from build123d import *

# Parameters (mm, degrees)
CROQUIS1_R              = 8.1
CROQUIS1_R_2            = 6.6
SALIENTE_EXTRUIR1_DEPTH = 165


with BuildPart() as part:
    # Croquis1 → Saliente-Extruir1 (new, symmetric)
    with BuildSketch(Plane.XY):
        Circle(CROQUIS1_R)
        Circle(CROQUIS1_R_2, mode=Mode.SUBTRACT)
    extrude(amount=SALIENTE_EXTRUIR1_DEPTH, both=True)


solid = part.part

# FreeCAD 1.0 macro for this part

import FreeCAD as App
import Part
import Sketcher
Q = App.Units.Quantity

doc = App.newDocument("Part")
body = doc.addObject("PartDesign::Body", "Body")

sketch1 = body.newObject("Sketcher::SketchObject", "Sketch")
sketch1.AttachmentSupport = (doc.getObject("XY_Plane"), [""])
sketch1.MapMode = "FlatFace"
sketch1.addGeometry([
    Part.Circle(App.Vector(0, 0, 0), App.Vector(0, 0, 1), 8.1),
    Part.Circle(App.Vector(0, 0, 0), App.Vector(0, 0, 1), 6.6),
], False)
sketch1.addConstraint([
    Sketcher.Constraint("Coincident", 0, 3, -1, 1),
    Sketcher.Constraint("Coincident", 1, 3, -1, 1),
    Sketcher.Constraint("Diameter", 0, Q("16.2 mm")),
    Sketcher.Constraint("Diameter", 1, Q("13.2 mm")),
])
pad1 = body.newObject("PartDesign::Pad", "Pad")
pad1.Profile = sketch1
pad1.Length = 330
pad1.Midplane = True

doc.recompute()
